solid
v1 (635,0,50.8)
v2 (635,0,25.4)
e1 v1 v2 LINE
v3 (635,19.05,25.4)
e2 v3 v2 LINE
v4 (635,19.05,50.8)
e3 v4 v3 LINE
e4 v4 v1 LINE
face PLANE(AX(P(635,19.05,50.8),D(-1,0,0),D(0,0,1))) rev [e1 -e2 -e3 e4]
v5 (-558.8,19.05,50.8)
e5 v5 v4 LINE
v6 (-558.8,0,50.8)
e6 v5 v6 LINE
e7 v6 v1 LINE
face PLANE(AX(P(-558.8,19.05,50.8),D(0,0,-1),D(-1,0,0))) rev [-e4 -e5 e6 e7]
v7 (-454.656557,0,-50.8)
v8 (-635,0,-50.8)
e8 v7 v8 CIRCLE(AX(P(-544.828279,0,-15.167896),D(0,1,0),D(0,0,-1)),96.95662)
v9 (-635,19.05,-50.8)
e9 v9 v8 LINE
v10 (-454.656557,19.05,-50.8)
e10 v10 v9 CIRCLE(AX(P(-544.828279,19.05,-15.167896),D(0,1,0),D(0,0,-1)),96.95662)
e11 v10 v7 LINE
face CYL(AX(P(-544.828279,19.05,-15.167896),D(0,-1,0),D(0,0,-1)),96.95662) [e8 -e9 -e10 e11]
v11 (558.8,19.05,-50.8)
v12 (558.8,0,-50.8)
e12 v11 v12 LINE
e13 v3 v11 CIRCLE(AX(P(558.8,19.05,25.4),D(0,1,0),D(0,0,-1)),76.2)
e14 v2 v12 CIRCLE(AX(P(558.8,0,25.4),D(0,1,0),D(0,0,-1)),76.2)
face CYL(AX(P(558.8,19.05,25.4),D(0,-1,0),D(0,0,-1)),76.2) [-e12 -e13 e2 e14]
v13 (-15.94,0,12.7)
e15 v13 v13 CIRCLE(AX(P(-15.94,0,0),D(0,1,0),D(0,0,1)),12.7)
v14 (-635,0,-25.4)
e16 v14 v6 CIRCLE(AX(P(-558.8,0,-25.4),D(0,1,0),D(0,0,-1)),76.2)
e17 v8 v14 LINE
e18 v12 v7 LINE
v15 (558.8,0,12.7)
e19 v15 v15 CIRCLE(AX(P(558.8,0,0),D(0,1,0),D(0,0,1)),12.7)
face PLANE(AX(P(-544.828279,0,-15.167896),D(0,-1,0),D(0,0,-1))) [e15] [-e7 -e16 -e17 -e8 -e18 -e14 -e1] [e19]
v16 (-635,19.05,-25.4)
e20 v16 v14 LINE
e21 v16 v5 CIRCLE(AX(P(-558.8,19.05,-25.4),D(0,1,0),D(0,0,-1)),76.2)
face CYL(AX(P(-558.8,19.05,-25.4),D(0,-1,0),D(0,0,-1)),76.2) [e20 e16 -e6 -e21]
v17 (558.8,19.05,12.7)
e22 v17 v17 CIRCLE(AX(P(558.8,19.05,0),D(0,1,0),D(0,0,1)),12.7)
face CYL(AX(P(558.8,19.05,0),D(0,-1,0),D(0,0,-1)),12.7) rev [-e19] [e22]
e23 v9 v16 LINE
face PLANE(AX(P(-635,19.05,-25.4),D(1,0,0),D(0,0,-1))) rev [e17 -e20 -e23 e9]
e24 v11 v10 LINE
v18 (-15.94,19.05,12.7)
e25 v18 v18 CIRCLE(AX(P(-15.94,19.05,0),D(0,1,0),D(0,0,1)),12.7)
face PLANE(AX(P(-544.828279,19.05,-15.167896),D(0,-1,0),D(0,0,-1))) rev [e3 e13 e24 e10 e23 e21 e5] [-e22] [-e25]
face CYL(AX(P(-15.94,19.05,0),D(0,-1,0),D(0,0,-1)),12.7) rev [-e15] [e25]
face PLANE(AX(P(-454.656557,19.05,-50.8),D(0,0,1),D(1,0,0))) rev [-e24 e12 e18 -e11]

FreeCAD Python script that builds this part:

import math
import FreeCAD as App
import Part
import Sketcher
Q = App.Units.Quantity

doc = App.newDocument("Part")
params = doc.addObject("Spreadsheet::Sheet", "Params")
for row, (alias, value) in enumerate([
    ("sketch1_diameter", "1 in"),
    ("sketch1_radius", "3 in"),
    ("sketch1_width", "47 in"),
    ("sketch1_height", "1 in"),
    ("pad1_length", "0.75 in"),
], start=1):
    params.set(f"A{row}", alias)
    params.set(f"B{row}", "=" + value)
    params.setAlias(f"B{row}", alias)

body = doc.addObject("PartDesign::Body", "Body")

# Sketch on XZ plane
sketch1 = doc.addObject("Sketcher::SketchObject", "Sketch")
body.addObject(sketch1)
sketch1.AttachmentSupport = (doc.XZ_Plane, [""])
sketch1.MapMode = "FlatFace"
sketch1.addGeometry(Part.LineSegment(App.Vector(-559, 51, 0), App.Vector(635, 51, 0)), False)
sketch1.addGeometry(Part.LineSegment(App.Vector(635, 51, 0), App.Vector(635, 25, 0)), False)
sketch1.addGeometry(Part.ArcOfCircle(Part.Circle(App.Vector(559, 25, 0), App.Vector(0, 0, 1), 76), math.radians(-90), math.radians(0)), False)
sketch1.addGeometry(Part.LineSegment(App.Vector(559, -51, 0), App.Vector(-455, -51, 0)), False)
sketch1.addGeometry(Part.ArcOfCircle(Part.Circle(App.Vector(-545, -15, 0), App.Vector(0, 0, 1), 97), math.radians(-158), math.radians(-22)), False)
sketch1.addGeometry(Part.LineSegment(App.Vector(-635, -51, 0), App.Vector(-635, -25, 0)), False)
sketch1.addGeometry(Part.ArcOfCircle(Part.Circle(App.Vector(-559, -25, 0), App.Vector(0, 0, 1), 76), math.radians(90), math.radians(180)), False)
sketch1.addGeometry(Part.Circle(App.Vector(-16, 0, 0), App.Vector(0, 0, 1), 13), False)
sketch1.addGeometry(Part.Circle(App.Vector(559, 0, 0), App.Vector(0, 0, 1), 13), False)
sketch1.addConstraint(Sketcher.Constraint("Coincident", 0, 2, 1, 1))
sketch1.addConstraint(Sketcher.Constraint("Tangent", 1, 2, 2, 2))
sketch1.addConstraint(Sketcher.Constraint("Tangent", 2, 1, 3, 1))
sketch1.addConstraint(Sketcher.Constraint("Coincident", 3, 2, 4, 2))
sketch1.addConstraint(Sketcher.Constraint("Coincident", 4, 1, 5, 1))
sketch1.addConstraint(Sketcher.Constraint("Tangent", 5, 2, 6, 2))
sketch1.addConstraint(Sketcher.Constraint("Tangent", 6, 1, 0, 1))
sketch1.addConstraint(Sketcher.Constraint("Horizontal", 0))
sketch1.addConstraint(Sketcher.Constraint("Vertical", 1))
sketch1.addConstraint(Sketcher.Constraint("Horizontal", 3))
sketch1.addConstraint(Sketcher.Constraint("Vertical", 5))
sketch1.addConstraint(Sketcher.Constraint("Equal", 2, 6))
sketch1.addConstraint(Sketcher.Constraint("Equal", 7, 8))
sketch1.addConstraint(Sketcher.Constraint("Symmetric", 2, 3, 6, 3, -1, 1))
sketch1.addConstraint(Sketcher.Constraint("PointOnObject", 7, 3, -1))
sketch1.addConstraint(Sketcher.Constraint("PointOnObject", 8, 3, -1))
sketch1.addConstraint(Sketcher.Constraint("Horizontal", 3, 2, 4, 1))
sketch1.addConstraint(Sketcher.Constraint("Vertical", 2, 3, 8, 3))
sketch1.addConstraint(Sketcher.Constraint("Diameter", 7, Q("1 in")))
sketch1.addConstraint(Sketcher.Constraint("Radius", 2, Q("3 in")))
sketch1.addConstraint(Sketcher.Constraint("DistanceX", 0, 1, 0, 2, Q("47 in")))
sketch1.addConstraint(Sketcher.Constraint("DistanceY", 1, 2, 1, 1, Q("1 in")))
sketch1.addConstraint(Sketcher.Constraint("Radius", 4, Q("96.95662 mm")))
sketch1.addConstraint(Sketcher.Constraint("DistanceX", 7, 3, -1, 1, Q("15.94 mm")))
sketch1.addConstraint(Sketcher.Constraint("DistanceX", 3, 2, 3, 1, Q("1013.456557 mm")))
sketch1.setExpression("Constraints[18]", "Params.sketch1_diameter")
sketch1.setExpression("Constraints[19]", "Params.sketch1_radius")
sketch1.setExpression("Constraints[20]", "Params.sketch1_width")
sketch1.setExpression("Constraints[21]", "Params.sketch1_height")
pad1 = doc.addObject("PartDesign::Pad", "Pad")
body.addObject(pad1)
pad1.Profile = sketch1
pad1.setExpression("Length", "Params.pad1_length")
pad1.Reversed = True

doc.recompute()
